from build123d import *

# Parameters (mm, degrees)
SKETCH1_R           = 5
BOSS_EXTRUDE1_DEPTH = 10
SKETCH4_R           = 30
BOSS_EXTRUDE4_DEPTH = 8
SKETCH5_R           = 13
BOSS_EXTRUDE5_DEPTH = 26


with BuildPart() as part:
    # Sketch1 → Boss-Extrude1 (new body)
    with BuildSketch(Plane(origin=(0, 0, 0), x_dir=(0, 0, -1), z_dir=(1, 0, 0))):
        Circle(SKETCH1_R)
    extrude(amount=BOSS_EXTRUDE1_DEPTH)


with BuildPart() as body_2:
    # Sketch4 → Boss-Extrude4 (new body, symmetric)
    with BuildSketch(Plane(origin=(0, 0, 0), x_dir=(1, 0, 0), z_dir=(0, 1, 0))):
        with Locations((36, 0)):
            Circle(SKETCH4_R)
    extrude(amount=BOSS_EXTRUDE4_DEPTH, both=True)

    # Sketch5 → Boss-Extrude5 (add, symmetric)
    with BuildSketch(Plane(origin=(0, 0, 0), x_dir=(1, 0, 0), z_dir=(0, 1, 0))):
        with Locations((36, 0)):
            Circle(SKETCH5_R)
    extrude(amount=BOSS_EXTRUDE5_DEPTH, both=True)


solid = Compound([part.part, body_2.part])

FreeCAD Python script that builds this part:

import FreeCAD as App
import Part
import Sketcher
Q = App.Units.Quantity

doc = App.newDocument("Part")
body = doc.addObject("PartDesign::Body", "Body")

sketch1 = body.newObject("Sketcher::SketchObject", "Sketch")
sketch1.AttachmentSupport = (doc.getObject("YZ_Plane"), [""])
sketch1.MapMode = "FlatFace"
sketch1.addGeometry(Part.Circle(App.Vector(0, 0, 0), App.Vector(0, 0, 1), 5), False)
sketch1.addConstraint(Sketcher.Constraint("Coincident", 0, 3, -1, 1))
sketch1.addConstraint(Sketcher.Constraint("Diameter", 0, Q("10 mm")))
pad1 = body.newObject("PartDesign::Pad", "Pad")
pad1.Profile = sketch1
pad1.Length = 10
body2 = doc.addObject("PartDesign::Body", "Body001")

sketch2 = body2.newObject("Sketcher::SketchObject", "Sketch001")
sketch2.AttachmentSupport = (doc.getObject("XZ_Plane001"), [""])
sketch2.MapMode = "FlatFace"
sketch2.addGeometry(Part.Circle(App.Vector(36, 0, 0), App.Vector(0, 0, 1), 30), False)
sketch2.addConstraint(Sketcher.Constraint("PointOnObject", 0, 3, -1))
sketch2.addConstraint(Sketcher.Constraint("Diameter", 0, Q("60 mm")))
sketch2.addConstraint(Sketcher.Constraint("DistanceX", -1, 1, 0, 3, Q("36 mm")))
pad2 = body2.newObject("PartDesign::Pad", "Pad001")
pad2.Profile = sketch2
pad2.Length = 16
pad2.Midplane = True

sketch3 = body2.newObject("Sketcher::SketchObject", "Sketch002")
sketch3.AttachmentSupport = (doc.getObject("XZ_Plane001"), [""])
sketch3.MapMode = "FlatFace"
sketch3.addGeometry(Part.Circle(App.Vector(36, 0, 0), App.Vector(0, 0, 1), 13), False)
sketch3.addConstraint(Sketcher.Constraint("PointOnObject", 0, 3, -1))
sketch3.addConstraint(Sketcher.Constraint("Diameter", 0, Q("26 mm")))
sketch3.addConstraint(Sketcher.Constraint("DistanceX", -1, 1, 0, 3, Q("36 mm")))
pad3 = body2.newObject("PartDesign::Pad", "Pad002")
pad3.Profile = sketch3
pad3.Length = 52
pad3.Midplane = True

doc.recompute()
